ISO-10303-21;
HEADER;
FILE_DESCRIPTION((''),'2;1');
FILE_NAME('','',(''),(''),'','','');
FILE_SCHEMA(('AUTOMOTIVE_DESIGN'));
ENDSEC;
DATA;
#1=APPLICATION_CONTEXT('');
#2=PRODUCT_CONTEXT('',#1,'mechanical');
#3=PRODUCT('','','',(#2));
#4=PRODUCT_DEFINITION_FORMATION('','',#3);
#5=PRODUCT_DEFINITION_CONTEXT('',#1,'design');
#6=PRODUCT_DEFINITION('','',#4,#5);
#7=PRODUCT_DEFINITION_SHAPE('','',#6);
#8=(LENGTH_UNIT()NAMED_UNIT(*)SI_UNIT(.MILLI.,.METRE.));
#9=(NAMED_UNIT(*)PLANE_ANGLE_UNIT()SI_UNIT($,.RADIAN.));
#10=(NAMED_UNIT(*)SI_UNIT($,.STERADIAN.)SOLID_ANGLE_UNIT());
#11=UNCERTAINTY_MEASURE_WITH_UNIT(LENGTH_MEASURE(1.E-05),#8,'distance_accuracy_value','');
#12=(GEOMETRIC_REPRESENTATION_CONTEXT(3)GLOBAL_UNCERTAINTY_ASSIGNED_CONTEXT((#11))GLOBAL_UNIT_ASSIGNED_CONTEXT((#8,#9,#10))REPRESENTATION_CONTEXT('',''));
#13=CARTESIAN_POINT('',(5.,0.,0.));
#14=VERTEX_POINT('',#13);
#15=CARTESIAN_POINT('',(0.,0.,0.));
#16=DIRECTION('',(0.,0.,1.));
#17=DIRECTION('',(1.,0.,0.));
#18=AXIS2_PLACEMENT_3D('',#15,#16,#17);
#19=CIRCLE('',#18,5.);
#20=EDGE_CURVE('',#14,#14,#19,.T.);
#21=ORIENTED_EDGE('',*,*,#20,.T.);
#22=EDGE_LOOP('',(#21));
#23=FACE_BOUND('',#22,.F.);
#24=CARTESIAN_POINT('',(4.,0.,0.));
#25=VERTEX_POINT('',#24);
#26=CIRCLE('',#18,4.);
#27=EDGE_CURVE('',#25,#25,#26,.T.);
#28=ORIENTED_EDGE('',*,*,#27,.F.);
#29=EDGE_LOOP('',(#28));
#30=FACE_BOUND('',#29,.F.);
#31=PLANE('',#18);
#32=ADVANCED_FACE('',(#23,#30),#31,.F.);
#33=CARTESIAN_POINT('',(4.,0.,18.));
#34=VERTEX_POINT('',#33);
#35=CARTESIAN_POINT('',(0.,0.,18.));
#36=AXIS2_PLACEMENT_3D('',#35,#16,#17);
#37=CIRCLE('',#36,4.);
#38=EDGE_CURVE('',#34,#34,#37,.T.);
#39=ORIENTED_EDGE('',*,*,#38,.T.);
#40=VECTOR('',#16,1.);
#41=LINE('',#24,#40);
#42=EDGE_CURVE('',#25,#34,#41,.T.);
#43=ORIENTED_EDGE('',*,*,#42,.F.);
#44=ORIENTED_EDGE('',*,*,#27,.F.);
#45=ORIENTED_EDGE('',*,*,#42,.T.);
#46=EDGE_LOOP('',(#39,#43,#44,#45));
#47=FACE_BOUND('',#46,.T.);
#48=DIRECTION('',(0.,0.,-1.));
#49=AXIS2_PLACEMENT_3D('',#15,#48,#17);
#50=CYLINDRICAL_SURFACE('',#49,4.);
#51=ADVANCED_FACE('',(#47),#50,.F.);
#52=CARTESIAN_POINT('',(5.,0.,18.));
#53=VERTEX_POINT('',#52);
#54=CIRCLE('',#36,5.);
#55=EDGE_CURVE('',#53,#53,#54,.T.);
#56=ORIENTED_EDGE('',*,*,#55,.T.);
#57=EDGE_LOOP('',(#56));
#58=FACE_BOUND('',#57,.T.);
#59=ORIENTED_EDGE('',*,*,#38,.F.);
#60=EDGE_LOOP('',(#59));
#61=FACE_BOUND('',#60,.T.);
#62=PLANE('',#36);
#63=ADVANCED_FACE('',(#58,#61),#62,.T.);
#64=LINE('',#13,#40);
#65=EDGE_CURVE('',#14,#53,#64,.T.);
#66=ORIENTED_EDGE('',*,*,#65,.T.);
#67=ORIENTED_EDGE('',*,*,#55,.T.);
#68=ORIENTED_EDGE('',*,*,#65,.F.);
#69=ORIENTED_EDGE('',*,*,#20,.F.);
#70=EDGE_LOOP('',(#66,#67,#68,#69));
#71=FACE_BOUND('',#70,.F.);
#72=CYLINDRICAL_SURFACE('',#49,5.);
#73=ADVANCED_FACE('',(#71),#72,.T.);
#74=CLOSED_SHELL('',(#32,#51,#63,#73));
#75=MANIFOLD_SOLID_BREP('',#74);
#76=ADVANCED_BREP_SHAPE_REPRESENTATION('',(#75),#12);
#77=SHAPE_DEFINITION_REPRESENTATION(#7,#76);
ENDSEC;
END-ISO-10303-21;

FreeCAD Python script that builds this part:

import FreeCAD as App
import Part
import Sketcher
from FreeCAD import Vector
Q = App.Units.Quantity

doc = App.newDocument("Part")
params = doc.addObject("Spreadsheet::Sheet", "Params")
for row, (alias, value) in enumerate([
    ("sketch1_diameter", "10 mm"),
    ("sketch1_diameter2", "8 mm"),
    ("pad1_length", "18 mm"),
], start=1):
    params.set(f"A{row}", alias)
    params.set(f"B{row}", "=" + value)
    params.setAlias(f"B{row}", alias)

body = doc.addObject("PartDesign::Body", "Body")

# Sketch on XY plane
sketch1 = doc.addObject("Sketcher::SketchObject", "Sketch")
body.addObject(sketch1)
sketch1.AttachmentSupport = (doc.XY_Plane, [""])
sketch1.MapMode = "FlatFace"
sketch1.addGeometry([
    Part.Circle(Vector(0, 0, 0), Vector(0, 0, 1), 5),
    Part.Circle(Vector(0, 0, 0), Vector(0, 0, 1), 4),
], False)
sketch1.addConstraint([
    Sketcher.Constraint("Coincident", 0, 3, -1, 1),
    Sketcher.Constraint("Coincident", 1, 3, -1, 1),
    Sketcher.Constraint("Diameter", 0, Q("10 mm")),
    Sketcher.Constraint("Diameter", 1, Q("8 mm")),
])
sketch1.setExpression("Constraints[2]", "Params.sketch1_diameter")
sketch1.setExpression("Constraints[3]", "Params.sketch1_diameter2")
pad1 = doc.addObject("PartDesign::Pad", "Pad")
body.addObject(pad1)
pad1.Profile = sketch1
pad1.setExpression("Length", "Params.pad1_length")

doc.recompute()
